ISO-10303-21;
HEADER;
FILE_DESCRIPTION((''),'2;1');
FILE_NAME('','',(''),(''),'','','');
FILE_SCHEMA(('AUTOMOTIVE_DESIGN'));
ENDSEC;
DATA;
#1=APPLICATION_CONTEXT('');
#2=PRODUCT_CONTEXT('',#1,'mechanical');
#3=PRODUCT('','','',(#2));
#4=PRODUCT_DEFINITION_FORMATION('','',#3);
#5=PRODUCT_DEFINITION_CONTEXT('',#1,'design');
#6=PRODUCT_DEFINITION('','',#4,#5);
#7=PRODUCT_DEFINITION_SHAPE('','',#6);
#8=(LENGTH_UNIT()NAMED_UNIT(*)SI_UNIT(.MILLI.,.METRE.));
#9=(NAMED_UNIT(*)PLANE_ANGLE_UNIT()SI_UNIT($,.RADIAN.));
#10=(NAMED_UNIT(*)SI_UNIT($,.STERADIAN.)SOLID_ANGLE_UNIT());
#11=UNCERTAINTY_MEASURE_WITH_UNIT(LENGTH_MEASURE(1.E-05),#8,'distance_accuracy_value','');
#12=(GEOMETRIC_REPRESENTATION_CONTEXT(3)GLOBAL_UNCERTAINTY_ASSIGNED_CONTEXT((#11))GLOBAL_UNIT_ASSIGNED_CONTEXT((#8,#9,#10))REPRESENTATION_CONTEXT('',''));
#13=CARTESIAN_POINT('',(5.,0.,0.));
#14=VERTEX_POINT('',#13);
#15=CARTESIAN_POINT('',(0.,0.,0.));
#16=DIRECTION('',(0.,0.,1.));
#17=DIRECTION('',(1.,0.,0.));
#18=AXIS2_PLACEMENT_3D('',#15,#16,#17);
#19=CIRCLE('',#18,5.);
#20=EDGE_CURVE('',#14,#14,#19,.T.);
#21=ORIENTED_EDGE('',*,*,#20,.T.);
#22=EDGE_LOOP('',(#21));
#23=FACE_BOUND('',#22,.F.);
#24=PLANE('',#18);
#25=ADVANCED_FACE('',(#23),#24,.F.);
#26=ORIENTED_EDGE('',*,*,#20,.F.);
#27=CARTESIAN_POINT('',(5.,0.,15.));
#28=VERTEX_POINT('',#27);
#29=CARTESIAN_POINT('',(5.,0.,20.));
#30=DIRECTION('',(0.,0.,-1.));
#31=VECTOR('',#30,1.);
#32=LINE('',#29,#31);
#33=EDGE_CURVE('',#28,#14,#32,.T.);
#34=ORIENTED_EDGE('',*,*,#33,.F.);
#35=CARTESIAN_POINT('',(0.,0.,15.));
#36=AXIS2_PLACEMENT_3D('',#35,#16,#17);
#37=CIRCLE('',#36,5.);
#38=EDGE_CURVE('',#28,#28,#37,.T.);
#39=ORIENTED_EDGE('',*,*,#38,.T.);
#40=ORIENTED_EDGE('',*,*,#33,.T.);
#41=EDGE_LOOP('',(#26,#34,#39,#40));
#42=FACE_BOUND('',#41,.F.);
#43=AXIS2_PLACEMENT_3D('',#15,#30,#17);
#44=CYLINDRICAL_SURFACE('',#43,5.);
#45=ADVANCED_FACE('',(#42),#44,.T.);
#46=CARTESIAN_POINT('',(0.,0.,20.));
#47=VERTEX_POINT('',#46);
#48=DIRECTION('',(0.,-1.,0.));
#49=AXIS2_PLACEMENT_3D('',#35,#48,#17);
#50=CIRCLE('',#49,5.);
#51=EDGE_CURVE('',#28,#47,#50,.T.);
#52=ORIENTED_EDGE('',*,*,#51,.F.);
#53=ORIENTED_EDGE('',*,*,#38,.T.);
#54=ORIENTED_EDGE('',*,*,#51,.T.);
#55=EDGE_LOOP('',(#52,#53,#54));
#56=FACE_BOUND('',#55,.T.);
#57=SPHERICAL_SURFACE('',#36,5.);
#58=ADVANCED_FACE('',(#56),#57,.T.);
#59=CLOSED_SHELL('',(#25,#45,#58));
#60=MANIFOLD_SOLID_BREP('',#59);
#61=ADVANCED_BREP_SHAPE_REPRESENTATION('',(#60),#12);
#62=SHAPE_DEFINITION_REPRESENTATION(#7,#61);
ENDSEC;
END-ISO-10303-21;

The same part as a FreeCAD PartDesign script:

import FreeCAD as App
import Part
import Sketcher

V = App.Vector


def edges_at(feature, points):
    """Names of the edges that pass closest to the given points."""
    edges = feature.Shape.Edges
    near = lambda p: min(range(len(edges)), key=lambda i: edges[i].distToShape(Part.Vertex(*p))[0])
    return sorted({f"Edge{near(p) + 1}" for p in points})

doc = App.newDocument("Part")
body = doc.addObject("PartDesign::Body", "Body")

# Sketch on XY plane
sketch1 = doc.addObject("Sketcher::SketchObject", "Sketch")
body.addObject(sketch1)
sketch1.AttachmentSupport = (doc.XY_Plane, [""])
sketch1.MapMode = "FlatFace"
sketch1.addGeometry(Part.Circle(V(0, 0, 0), V(0, 0, 1), 5), False)
sketch1.addConstraint(Sketcher.Constraint("Coincident", 0, 3, -1, 1))
sketch1.addConstraint(Sketcher.Constraint("Diameter", 0, 10.0))
pad1 = doc.addObject("PartDesign::Pad", "Pad")
body.addObject(pad1)
pad1.Profile = sketch1
pad1.Length = 10

# Sketch on XY plane
sketch2 = doc.addObject("Sketcher::SketchObject", "Sketch001")
body.addObject(sketch2)
sketch2.AttachmentSupport = (doc.XY_Plane, [""])
sketch2.MapMode = "FlatFace"
sketch2.AttachmentOffset = App.Placement(V(0, 0, 10), App.Rotation())
sketch2.addGeometry(Part.Circle(V(0, 0, 0), V(0, 0, 1), 5), False)
sketch2.addConstraint(Sketcher.Constraint("Coincident", 0, 3, -1, 1))
sketch2.addConstraint(Sketcher.Constraint("Diameter", 0, 10.0))
pad2 = doc.addObject("PartDesign::Pad", "Pad001")
body.addObject(pad2)
pad2.Profile = sketch2
pad2.Length = 10
doc.recompute()

fillet = doc.addObject("PartDesign::Fillet", "Fillet")
body.addObject(fillet)
fillet.Base = (pad2, edges_at(pad2, [(-5, 0, 20)]))
fillet.Radius = 5

doc.recompute()
